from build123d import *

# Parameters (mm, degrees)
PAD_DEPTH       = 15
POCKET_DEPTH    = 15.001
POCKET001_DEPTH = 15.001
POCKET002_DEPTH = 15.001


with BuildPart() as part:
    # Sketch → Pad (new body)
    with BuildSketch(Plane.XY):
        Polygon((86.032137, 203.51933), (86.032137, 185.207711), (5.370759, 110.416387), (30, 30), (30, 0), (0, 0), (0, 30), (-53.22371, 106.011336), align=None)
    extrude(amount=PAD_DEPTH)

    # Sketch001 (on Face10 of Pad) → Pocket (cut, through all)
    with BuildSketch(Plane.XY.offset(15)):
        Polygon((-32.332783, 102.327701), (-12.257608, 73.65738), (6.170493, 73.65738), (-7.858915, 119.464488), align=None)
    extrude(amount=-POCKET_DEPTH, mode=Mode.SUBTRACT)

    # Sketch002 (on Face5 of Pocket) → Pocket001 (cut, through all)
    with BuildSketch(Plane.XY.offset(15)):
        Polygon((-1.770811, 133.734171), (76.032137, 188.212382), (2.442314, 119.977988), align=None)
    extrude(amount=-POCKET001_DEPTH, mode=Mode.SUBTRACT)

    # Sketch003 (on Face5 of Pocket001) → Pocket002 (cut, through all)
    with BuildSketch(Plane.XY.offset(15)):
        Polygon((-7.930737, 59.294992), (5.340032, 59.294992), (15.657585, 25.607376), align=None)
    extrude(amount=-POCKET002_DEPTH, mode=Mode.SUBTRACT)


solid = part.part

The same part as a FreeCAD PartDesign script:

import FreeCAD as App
import Part
import Sketcher

V = App.Vector
Q = App.Units.Quantity


def add_polygon(sketch, points):
    """Adds a closed chain of lines whose ends are joined by coincident constraints."""
    first, n = sketch.GeometryCount, len(points)
    for a, b in zip(points, points[1:] + points[:1]):
        sketch.addGeometry(Part.LineSegment(App.Vector(*a, 0), App.Vector(*b, 0)), False)
    for i in range(n):
        sketch.addConstraint(Sketcher.Constraint("Coincident", first + i, 2, first + (i + 1) % n, 1))

doc = App.newDocument("Part")
body = doc.addObject("PartDesign::Body", "Body")

sketch1 = body.newObject("Sketcher::SketchObject", "Sketch")
sketch1.AttachmentSupport = (doc.getObject("XY_Plane"), [""])
sketch1.MapMode = "FlatFace"
add_polygon(sketch1, [(86, 185), (86, 204), (-53, 106), (0, 30), (0, 0), (30, 0), (30, 30), (5, 110)])
sketch1.addConstraint(Sketcher.Constraint("Vertical", 0))
sketch1.addConstraint(Sketcher.Constraint("Vertical", 3))
sketch1.addConstraint(Sketcher.Constraint("Horizontal", 4))
sketch1.addConstraint(Sketcher.Constraint("Vertical", 5))
sketch1.addConstraint(Sketcher.Constraint("Coincident", 3, 2, -1, 1))
sketch1.addConstraint(Sketcher.Constraint("Perpendicular", 1, 2))
sketch1.addConstraint(Sketcher.Constraint("Horizontal", 2, 2, 5, 2))
sketch1.addConstraint(Sketcher.Constraint("Equal", 4, 3))
sketch1.addConstraint(Sketcher.Constraint("DistanceX", 4, 1, 4, 2, 30.0))
sketch1.addConstraint(Sketcher.Constraint("Angle", 1, Q("-145 deg")))
sketch1.addConstraint(Sketcher.Constraint("Distance", 1, 169.999999))
sketch1.addConstraint(Sketcher.Constraint("Distance", 7, 110.0))
sketch1.addConstraint(Sketcher.Constraint("DistanceY", 0, 1, 0, 2, 18.311619))
sketch1.addConstraint(Sketcher.Constraint("DistanceY", -1, 1, 0, 2, 203.51933))
sketch1.addConstraint(Sketcher.Constraint("DistanceX", -1, 1, 6, 2, 5.370759))
pad1 = body.newObject("PartDesign::Pad", "Pad")
pad1.Profile = sketch1
pad1.Length = 15

sketch2 = body.newObject("Sketcher::SketchObject", "Sketch001")
sketch2.AttachmentSupport = (doc.getObject("XY_Plane"), [""])
sketch2.MapMode = "FlatFace"
sketch2.AttachmentOffset = App.Placement(V(0, 0, 15), App.Rotation())
add_polygon(sketch2, [(-32, 102), (-12, 74), (6, 74), (-8, 119)])
sketch2.addConstraint(Sketcher.Constraint("Horizontal", 1))
sketch2.addConstraint(Sketcher.Constraint("Perpendicular", 0, 3))
sketch2.addConstraint(Sketcher.Constraint("Angle", 0, Q("-55 deg")))
sketch2.addConstraint(Sketcher.Constraint("Distance", 0, 34.999999))
sketch2.addConstraint(Sketcher.Constraint("DistanceX", 1, 1, 1, 2, 18.428101))
sketch2.addConstraint(Sketcher.Constraint("DistanceY", -1, 1, 3, 2, 102.327701))
sketch2.addConstraint(Sketcher.Constraint("DistanceY", -1, 1, 2, 2, 119.464488))
sketch2.addConstraint(Sketcher.Constraint("DistanceX", 0, 2, -1, 1, 12.257608))
pocket1 = body.newObject("PartDesign::Pocket", "Pocket")
pocket1.Profile = sketch2
pocket1.Type = "ThroughAll"

sketch3 = body.newObject("Sketcher::SketchObject", "Sketch002")
sketch3.AttachmentSupport = (doc.getObject("XY_Plane"), [""])
sketch3.MapMode = "FlatFace"
sketch3.AttachmentOffset = App.Placement(V(0, 0, 15), App.Rotation())
add_polygon(sketch3, [(76, 188), (-2, 134), (2, 120)])
sketch3.addConstraint(Sketcher.Constraint("Angle", 0, Q("-145 deg")))
sketch3.addConstraint(Sketcher.Constraint("DistanceX", 0, 2, -1, 1, 1.770811))
sketch3.addConstraint(Sketcher.Constraint("DistanceY", -1, 1, 0, 2, 133.734171))
sketch3.addConstraint(Sketcher.Constraint("DistanceY", -1, 1, 2, 2, 188.212382))
sketch3.addConstraint(Sketcher.Constraint("Distance", 1, 14.386904))
sketch3.addConstraint(Sketcher.Constraint("Distance", 2, 100.356338))
pocket2 = body.newObject("PartDesign::Pocket", "Pocket001")
pocket2.Profile = sketch3
pocket2.Type = "ThroughAll"

sketch4 = body.newObject("Sketcher::SketchObject", "Sketch003")
sketch4.AttachmentSupport = (doc.getObject("XY_Plane"), [""])
sketch4.MapMode = "FlatFace"
sketch4.AttachmentOffset = App.Placement(V(0, 0, 15), App.Rotation())
add_polygon(sketch4, [(5, 59), (-8, 59), (16, 26)])
sketch4.addConstraint(Sketcher.Constraint("Horizontal", 0))
sketch4.addConstraint(Sketcher.Constraint("Angle", 1, Q("-55.000001 deg")))
sketch4.addConstraint(Sketcher.Constraint("DistanceX", 0, 2, 0, 1, 13.270769))
sketch4.addConstraint(Sketcher.Constraint("DistanceX", 0, 2, 1, 2, 23.588322))
sketch4.addConstraint(Sketcher.Constraint("DistanceX", 0, 2, -1, 1, 7.930737))
sketch4.addConstraint(Sketcher.Constraint("DistanceY", -1, 1, 0, 2, 59.294992))
pocket3 = body.newObject("PartDesign::Pocket", "Pocket002")
pocket3.Profile = sketch4
pocket3.Type = "ThroughAll"

doc.recompute()
